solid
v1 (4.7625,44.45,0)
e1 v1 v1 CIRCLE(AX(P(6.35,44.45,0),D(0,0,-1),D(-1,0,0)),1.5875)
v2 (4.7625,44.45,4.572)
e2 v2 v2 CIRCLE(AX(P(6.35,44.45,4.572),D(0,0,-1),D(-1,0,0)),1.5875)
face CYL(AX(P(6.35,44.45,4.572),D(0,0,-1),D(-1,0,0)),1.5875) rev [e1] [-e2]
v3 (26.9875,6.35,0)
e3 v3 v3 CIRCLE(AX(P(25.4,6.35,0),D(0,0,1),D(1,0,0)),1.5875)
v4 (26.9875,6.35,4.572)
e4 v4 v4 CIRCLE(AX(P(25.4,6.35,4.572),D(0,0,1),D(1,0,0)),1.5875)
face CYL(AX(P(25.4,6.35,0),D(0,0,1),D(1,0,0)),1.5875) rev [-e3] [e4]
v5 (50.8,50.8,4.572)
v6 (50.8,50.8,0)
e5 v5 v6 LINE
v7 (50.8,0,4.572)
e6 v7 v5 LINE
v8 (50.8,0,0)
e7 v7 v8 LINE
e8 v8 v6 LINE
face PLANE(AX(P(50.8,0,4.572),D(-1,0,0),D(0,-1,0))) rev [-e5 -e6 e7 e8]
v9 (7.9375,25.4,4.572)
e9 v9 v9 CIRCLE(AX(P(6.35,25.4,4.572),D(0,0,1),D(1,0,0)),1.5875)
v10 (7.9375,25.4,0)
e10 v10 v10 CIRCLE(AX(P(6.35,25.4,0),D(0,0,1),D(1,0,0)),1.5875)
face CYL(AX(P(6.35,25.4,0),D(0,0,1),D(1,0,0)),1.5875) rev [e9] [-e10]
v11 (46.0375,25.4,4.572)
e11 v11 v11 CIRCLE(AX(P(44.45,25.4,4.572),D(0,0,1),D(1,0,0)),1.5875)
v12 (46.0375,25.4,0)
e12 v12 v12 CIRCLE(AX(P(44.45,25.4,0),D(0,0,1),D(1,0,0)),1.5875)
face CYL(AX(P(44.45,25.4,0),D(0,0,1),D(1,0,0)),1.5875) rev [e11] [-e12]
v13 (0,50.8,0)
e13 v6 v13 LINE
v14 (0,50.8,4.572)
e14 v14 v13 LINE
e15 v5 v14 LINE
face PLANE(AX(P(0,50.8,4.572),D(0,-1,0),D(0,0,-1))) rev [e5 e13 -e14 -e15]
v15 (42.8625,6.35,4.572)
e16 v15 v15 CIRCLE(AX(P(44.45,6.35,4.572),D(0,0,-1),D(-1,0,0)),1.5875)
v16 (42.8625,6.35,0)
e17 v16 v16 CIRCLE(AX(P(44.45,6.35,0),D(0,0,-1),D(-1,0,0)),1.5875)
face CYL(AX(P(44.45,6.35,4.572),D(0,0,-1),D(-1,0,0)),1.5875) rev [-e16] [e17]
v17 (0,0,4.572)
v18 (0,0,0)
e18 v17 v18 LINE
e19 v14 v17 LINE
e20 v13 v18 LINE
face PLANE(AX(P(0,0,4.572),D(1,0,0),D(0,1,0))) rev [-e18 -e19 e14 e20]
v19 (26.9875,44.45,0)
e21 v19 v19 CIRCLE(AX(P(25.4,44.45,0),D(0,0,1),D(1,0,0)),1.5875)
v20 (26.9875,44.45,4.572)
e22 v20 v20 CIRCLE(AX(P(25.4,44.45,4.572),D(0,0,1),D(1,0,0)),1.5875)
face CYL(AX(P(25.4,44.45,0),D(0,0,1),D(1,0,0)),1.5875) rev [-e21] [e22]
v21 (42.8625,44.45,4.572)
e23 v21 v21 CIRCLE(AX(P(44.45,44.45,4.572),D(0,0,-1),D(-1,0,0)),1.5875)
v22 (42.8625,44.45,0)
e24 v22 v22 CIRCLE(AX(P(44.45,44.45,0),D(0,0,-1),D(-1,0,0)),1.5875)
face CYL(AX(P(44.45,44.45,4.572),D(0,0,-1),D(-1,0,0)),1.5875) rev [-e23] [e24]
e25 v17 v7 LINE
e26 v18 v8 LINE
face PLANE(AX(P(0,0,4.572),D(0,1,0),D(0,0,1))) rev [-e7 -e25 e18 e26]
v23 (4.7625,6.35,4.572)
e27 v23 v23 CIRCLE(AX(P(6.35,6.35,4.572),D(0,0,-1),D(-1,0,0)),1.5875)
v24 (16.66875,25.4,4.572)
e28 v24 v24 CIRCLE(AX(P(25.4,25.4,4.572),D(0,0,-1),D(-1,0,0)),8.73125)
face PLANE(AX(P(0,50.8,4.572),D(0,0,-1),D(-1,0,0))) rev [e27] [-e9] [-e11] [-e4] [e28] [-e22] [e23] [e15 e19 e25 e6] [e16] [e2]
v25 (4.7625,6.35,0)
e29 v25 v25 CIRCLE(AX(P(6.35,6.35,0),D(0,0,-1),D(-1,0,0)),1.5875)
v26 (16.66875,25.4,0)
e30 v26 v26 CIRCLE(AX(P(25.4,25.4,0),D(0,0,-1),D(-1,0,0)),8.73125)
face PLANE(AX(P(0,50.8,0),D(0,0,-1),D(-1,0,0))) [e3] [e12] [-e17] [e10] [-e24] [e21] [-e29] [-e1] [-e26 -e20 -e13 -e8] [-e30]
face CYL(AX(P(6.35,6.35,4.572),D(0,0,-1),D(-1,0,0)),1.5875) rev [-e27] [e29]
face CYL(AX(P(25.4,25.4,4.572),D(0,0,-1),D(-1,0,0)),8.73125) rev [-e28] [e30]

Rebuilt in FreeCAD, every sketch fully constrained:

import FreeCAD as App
import Part
import Sketcher
Q = App.Units.Quantity


def add_polygon(sketch, points):
    """Adds a closed chain of lines whose ends are joined by coincident constraints."""
    first, n = sketch.GeometryCount, len(points)
    for a, b in zip(points, points[1:] + points[:1]):
        sketch.addGeometry(Part.LineSegment(App.Vector(*a, 0), App.Vector(*b, 0)), False)
    for i in range(n):
        sketch.addConstraint(Sketcher.Constraint("Coincident", first + i, 2, first + (i + 1) % n, 1))

doc = App.newDocument("Part")
body = doc.addObject("PartDesign::Body", "Body")

# Sketch on XY plane
sketch1 = doc.addObject("Sketcher::SketchObject", "Sketch")
body.addObject(sketch1)
sketch1.AttachmentSupport = (doc.XY_Plane, [""])
sketch1.MapMode = "FlatFace"
add_polygon(sketch1, [(0, 51), (0, 0), (51, 0), (51, 51)])  # lines 0-3
sketch1.addConstraint([
    Sketcher.Constraint("Vertical", 0),
    Sketcher.Constraint("Horizontal", 1),
    Sketcher.Constraint("Vertical", 2),
    Sketcher.Constraint("Horizontal", 3),
    Sketcher.Constraint("Coincident", 0, 2, -1, 1),
    Sketcher.Constraint("Equal", 3, 0),
    Sketcher.Constraint("DistanceX", 1, 1, 1, 2, Q("2 in")),
])
pad1 = doc.addObject("PartDesign::Pad", "Pad")
body.addObject(pad1)
pad1.Profile = sketch1
pad1.Length = Q("0.18 in")

# Sketch on XY plane
sketch2 = doc.addObject("Sketcher::SketchObject", "Sketch001")
body.addObject(sketch2)
sketch2.AttachmentSupport = (doc.XY_Plane, [""])
sketch2.MapMode = "FlatFace"
sketch2.addGeometry(Part.Circle(App.Vector(25, 25, 0), App.Vector(0, 0, 1), 9), False)
sketch2.addConstraint([
    Sketcher.Constraint("Diameter", 0, Q("0.6875 in")),
    Sketcher.Constraint("DistanceX", -1, 1, 0, 3, Q("1 in")),
    Sketcher.Constraint("DistanceY", -1, 1, 0, 3, Q("1 in")),
])
pocket1 = doc.addObject("PartDesign::Pocket", "Pocket")
body.addObject(pocket1)
pocket1.Profile = sketch2
pocket1.Type = "ThroughAll"
pocket1.Reversed = True

# Sketch on XY plane
sketch3 = doc.addObject("Sketcher::SketchObject", "Sketch002")
body.addObject(sketch3)
sketch3.AttachmentSupport = (doc.XY_Plane, [""])
sketch3.MapMode = "FlatFace"
sketch3.AttachmentOffset = App.Placement(App.Vector(0, 0, 0.18 * 25.4), App.Rotation())
sketch3.addGeometry([
    Part.Circle(App.Vector(25.4, 6.3, 0), App.Vector(0, 0, 1), 1.6),
    Part.Circle(App.Vector(6.3, 25.4, 0), App.Vector(0, 0, 1), 1.6),
    Part.Circle(App.Vector(25.4, 44.5, 0), App.Vector(0, 0, 1), 1.6),
    Part.Circle(App.Vector(44.5, 25.4, 0), App.Vector(0, 0, 1), 1.6),
], False)
sketch3.addConstraint([
    Sketcher.Constraint("Equal", 0, 1),
    Sketcher.Constraint("Equal", 1, 2),
    Sketcher.Constraint("Equal", 2, 3),
    Sketcher.Constraint("Horizontal", 1, 3, 3, 3),
    Sketcher.Constraint("Vertical", 0, 3, 2, 3),
    Sketcher.Constraint("Diameter", 0, Q("0.125 in")),
    Sketcher.Constraint("DistanceX", -1, 1, 0, 3, Q("1 in")),
    Sketcher.Constraint("DistanceY", -1, 1, 1, 3, Q("1 in")),
    Sketcher.Constraint("DistanceY", 0, 3, 2, 3, Q("1.5 in")),
    Sketcher.Constraint("DistanceX", 1, 3, 3, 3, Q("1.5 in")),
    Sketcher.Constraint("DistanceY", -1, 1, 0, 3, Q("0.25 in")),
    Sketcher.Constraint("DistanceX", -1, 1, 1, 3, Q("0.25 in")),
])
pocket2 = doc.addObject("PartDesign::Pocket", "Pocket001")
body.addObject(pocket2)
pocket2.Profile = sketch3
pocket2.Type = "ThroughAll"

# Sketch on XY plane
sketch4 = doc.addObject("Sketcher::SketchObject", "Sketch003")
body.addObject(sketch4)
sketch4.AttachmentSupport = (doc.XY_Plane, [""])
sketch4.MapMode = "FlatFace"
sketch4.addGeometry([
    Part.Circle(App.Vector(6.3, 6.3, 0), App.Vector(0, 0, 1), 1.6),
    Part.Circle(App.Vector(44.5, 6.3, 0), App.Vector(0, 0, 1), 1.6),
    Part.Circle(App.Vector(44.5, 44.5, 0), App.Vector(0, 0, 1), 1.6),
    Part.Circle(App.Vector(6.3, 44.5, 0), App.Vector(0, 0, 1), 1.6),
], False)
sketch4.addConstraint([
    Sketcher.Constraint("Equal", 0, 1),
    Sketcher.Constraint("Equal", 1, 2),
    Sketcher.Constraint("Equal", 2, 3),
    Sketcher.Constraint("Horizontal", 0, 3, 1, 3),
    Sketcher.Constraint("Horizontal", 2, 3, 3, 3),
    Sketcher.Constraint("Vertical", 1, 3, 2, 3),
    Sketcher.Constraint("Vertical", 0, 3, 3, 3),
    Sketcher.Constraint("Diameter", 0, Q("0.125 in")),
    Sketcher.Constraint("DistanceX", 0, 3, 1, 3, Q("1.5 in")),
    Sketcher.Constraint("DistanceY", 1, 3, 2, 3, Q("1.5 in")),
    Sketcher.Constraint("DistanceX", -1, 1, 0, 3, Q("0.25 in")),
    Sketcher.Constraint("DistanceY", -1, 1, 0, 3, Q("0.25 in")),
])
pocket3 = doc.addObject("PartDesign::Pocket", "Pocket002")
body.addObject(pocket3)
pocket3.Profile = sketch4
pocket3.Type = "ThroughAll"
pocket3.Reversed = True

doc.recompute()
